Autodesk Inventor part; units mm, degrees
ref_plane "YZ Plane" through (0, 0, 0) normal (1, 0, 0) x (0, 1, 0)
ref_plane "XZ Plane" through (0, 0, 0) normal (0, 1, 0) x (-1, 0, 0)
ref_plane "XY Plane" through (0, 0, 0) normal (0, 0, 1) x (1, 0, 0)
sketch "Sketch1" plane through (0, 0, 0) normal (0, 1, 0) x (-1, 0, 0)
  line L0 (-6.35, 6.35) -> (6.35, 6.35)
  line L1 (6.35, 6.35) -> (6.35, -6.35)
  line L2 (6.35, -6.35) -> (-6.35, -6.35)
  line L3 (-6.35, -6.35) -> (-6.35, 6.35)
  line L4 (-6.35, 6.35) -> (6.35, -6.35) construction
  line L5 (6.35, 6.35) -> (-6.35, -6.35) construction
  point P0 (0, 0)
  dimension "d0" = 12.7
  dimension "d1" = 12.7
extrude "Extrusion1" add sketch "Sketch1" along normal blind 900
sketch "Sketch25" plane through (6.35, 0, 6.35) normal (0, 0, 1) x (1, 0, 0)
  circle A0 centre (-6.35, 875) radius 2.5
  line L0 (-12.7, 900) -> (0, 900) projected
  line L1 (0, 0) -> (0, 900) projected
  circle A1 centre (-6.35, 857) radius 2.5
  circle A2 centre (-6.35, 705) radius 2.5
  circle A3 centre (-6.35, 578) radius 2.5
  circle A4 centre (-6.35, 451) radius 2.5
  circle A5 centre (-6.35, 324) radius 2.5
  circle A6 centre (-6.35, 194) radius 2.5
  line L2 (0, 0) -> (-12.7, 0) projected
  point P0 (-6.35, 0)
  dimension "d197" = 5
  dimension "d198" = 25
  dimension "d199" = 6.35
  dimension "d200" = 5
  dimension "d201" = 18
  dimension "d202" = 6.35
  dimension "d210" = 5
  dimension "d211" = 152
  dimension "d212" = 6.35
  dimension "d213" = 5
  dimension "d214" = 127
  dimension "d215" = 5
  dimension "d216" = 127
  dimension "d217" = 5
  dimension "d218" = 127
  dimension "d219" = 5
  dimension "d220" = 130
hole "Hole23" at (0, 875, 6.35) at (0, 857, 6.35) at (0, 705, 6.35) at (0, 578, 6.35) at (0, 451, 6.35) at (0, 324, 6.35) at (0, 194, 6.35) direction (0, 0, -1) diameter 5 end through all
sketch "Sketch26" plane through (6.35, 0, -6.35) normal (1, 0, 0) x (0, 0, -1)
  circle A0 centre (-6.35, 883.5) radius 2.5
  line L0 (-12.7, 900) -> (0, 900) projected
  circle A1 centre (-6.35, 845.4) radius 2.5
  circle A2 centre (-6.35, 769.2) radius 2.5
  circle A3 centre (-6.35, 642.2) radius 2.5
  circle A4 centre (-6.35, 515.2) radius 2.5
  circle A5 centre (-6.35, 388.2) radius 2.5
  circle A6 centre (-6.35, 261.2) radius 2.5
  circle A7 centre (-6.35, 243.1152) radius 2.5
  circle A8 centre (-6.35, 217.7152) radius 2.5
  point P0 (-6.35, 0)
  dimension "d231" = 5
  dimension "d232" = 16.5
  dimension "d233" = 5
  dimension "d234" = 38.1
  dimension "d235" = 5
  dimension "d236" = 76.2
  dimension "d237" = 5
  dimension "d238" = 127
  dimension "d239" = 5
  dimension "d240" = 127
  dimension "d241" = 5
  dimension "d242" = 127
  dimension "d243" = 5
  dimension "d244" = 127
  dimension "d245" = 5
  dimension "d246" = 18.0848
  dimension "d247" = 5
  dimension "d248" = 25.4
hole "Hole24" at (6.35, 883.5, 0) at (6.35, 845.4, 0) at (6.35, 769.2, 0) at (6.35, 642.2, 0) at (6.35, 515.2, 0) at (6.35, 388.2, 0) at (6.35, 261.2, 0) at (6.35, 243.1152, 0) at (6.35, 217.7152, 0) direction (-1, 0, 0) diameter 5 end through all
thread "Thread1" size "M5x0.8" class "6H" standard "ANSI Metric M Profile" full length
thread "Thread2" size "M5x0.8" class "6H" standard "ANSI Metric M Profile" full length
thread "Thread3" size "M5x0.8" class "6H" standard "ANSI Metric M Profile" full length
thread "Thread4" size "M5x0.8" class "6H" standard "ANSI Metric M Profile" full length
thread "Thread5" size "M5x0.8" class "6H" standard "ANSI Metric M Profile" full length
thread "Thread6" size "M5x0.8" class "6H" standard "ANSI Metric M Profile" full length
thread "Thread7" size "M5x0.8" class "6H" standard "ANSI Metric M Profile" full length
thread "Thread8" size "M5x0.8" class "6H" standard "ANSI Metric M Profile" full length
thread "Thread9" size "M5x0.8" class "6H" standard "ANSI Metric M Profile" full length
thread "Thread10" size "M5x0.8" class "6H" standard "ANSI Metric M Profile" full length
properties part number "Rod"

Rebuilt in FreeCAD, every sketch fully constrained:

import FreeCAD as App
import Part
import Sketcher
from FreeCAD import Vector

doc = App.newDocument("Part")
body = doc.addObject("PartDesign::Body", "Body")

# Sketch on XZ plane
sketch1 = body.newObject("Sketcher::SketchObject", "Sketch")
sketch1.AttachmentSupport = (doc.getObject("XZ_Plane"), [""])
sketch1.MapMode = "FlatFace"
sketch1.addGeometry([
    Part.LineSegment(Vector(-6, 6, 0), Vector(6, 6, 0)),
    Part.LineSegment(Vector(6, 6, 0), Vector(6, -6, 0)),
    Part.LineSegment(Vector(6, -6, 0), Vector(-6, -6, 0)),
    Part.LineSegment(Vector(-6, -6, 0), Vector(-6, 6, 0)),
], False)
sketch1.addConstraint([
    Sketcher.Constraint("Coincident", 0, 2, 1, 1),
    Sketcher.Constraint("Coincident", 1, 2, 2, 1),
    Sketcher.Constraint("Coincident", 2, 2, 3, 1),
    Sketcher.Constraint("Coincident", 3, 2, 0, 1),
    Sketcher.Constraint("Horizontal", 0),
    Sketcher.Constraint("Vertical", 1),
    Sketcher.Constraint("Horizontal", 2),
    Sketcher.Constraint("Vertical", 3),
    Sketcher.Constraint("Symmetric", 0, 2, 2, 2, -1, 1),
    Sketcher.Constraint("Equal", 2, 1),
    Sketcher.Constraint("DistanceX", 0, 1, 0, 2, 12.7),
])
pad1 = body.newObject("PartDesign::Pad", "Pad")
pad1.Profile = sketch1
pad1.Length = 900
pad1.Reversed = True

# Sketch on XY plane
sketch2 = body.newObject("Sketcher::SketchObject", "Sketch001")
sketch2.AttachmentSupport = (doc.getObject("XY_Plane"), [""])
sketch2.MapMode = "FlatFace"
sketch2.AttachmentOffset = App.Placement(Vector(0, 0, 6.35), App.Rotation())
sketch2.addGeometry([
    Part.Circle(Vector(0, 875, 0), Vector(0, 0, 1), 2.5),  # 0
    Part.Circle(Vector(0, 857, 0), Vector(0, 0, 1), 2.5),  # 1
    Part.Circle(Vector(0, 705, 0), Vector(0, 0, 1), 2.5),  # 2
    Part.Circle(Vector(0, 578, 0), Vector(0, 0, 1), 2.5),  # 3
    Part.Circle(Vector(0, 451, 0), Vector(0, 0, 1), 2.5),  # 4
    Part.Circle(Vector(0, 324, 0), Vector(0, 0, 1), 2.5),  # 5
    Part.Circle(Vector(0, 194, 0), Vector(0, 0, 1), 2.5),  # 6
], False)
sketch2.addConstraint([
    Sketcher.Constraint("Equal", 0, 1),
    Sketcher.Constraint("Equal", 1, 2),
    Sketcher.Constraint("Equal", 2, 3),
    Sketcher.Constraint("Equal", 3, 4),
    Sketcher.Constraint("Equal", 4, 5),
    Sketcher.Constraint("Equal", 5, 6),
    Sketcher.Constraint("PointOnObject", 0, 3, -2),
    Sketcher.Constraint("PointOnObject", 1, 3, -2),
    Sketcher.Constraint("PointOnObject", 2, 3, -2),
    Sketcher.Constraint("PointOnObject", 3, 3, -2),
    Sketcher.Constraint("PointOnObject", 4, 3, -2),
    Sketcher.Constraint("PointOnObject", 5, 3, -2),
    Sketcher.Constraint("PointOnObject", 6, 3, -2),
    Sketcher.Constraint("Diameter", 0, 5.0),
    Sketcher.Constraint("DistanceY", -1, 1, 0, 3, 875.0),
    Sketcher.Constraint("DistanceY", -1, 1, 1, 3, 857.0),
    Sketcher.Constraint("DistanceY", -1, 1, 2, 3, 705.0),
    Sketcher.Constraint("DistanceY", -1, 1, 3, 3, 578.0),
    Sketcher.Constraint("DistanceY", -1, 1, 4, 3, 451.0),
    Sketcher.Constraint("DistanceY", -1, 1, 5, 3, 324.0),
    Sketcher.Constraint("DistanceY", -1, 1, 6, 3, 194.0),
])
doc.recompute()
hole = body.newObject("PartDesign::Hole", "Hole")
hole.Profile = sketch2
hole.ThreadType = "None"
hole.Diameter = 5
hole.DepthType = "ThroughAll"

# Sketch on YZ plane
sketch3 = body.newObject("Sketcher::SketchObject", "Sketch002")
sketch3.AttachmentSupport = (doc.getObject("YZ_Plane"), [""])
sketch3.MapMode = "FlatFace"
sketch3.AttachmentOffset = App.Placement(Vector(0, 0, 6.35), App.Rotation())
sketch3.addGeometry([
    Part.Circle(Vector(883.5, 0, 0), Vector(0, 0, 1), 2.5),  # 0
    Part.Circle(Vector(845.4, 0, 0), Vector(0, 0, 1), 2.5),  # 1
    Part.Circle(Vector(769.2, 0, 0), Vector(0, 0, 1), 2.5),  # 2
    Part.Circle(Vector(642.2, 0, 0), Vector(0, 0, 1), 2.5),  # 3
    Part.Circle(Vector(515.2, 0, 0), Vector(0, 0, 1), 2.5),  # 4
    Part.Circle(Vector(388.2, 0, 0), Vector(0, 0, 1), 2.5),  # 5
    Part.Circle(Vector(261.2, 0, 0), Vector(0, 0, 1), 2.5),  # 6
    Part.Circle(Vector(243.1, 0, 0), Vector(0, 0, 1), 2.5),  # 7
    Part.Circle(Vector(217.7, 0, 0), Vector(0, 0, 1), 2.5),  # 8
], False)
sketch3.addConstraint([
    Sketcher.Constraint("Equal", 0, 1),
    Sketcher.Constraint("Equal", 1, 2),
    Sketcher.Constraint("Equal", 2, 3),
    Sketcher.Constraint("Equal", 3, 4),
    Sketcher.Constraint("Equal", 4, 5),
    Sketcher.Constraint("Equal", 5, 6),
    Sketcher.Constraint("Equal", 6, 7),
    Sketcher.Constraint("Equal", 7, 8),
    Sketcher.Constraint("PointOnObject", 0, 3, -1),
    Sketcher.Constraint("PointOnObject", 1, 3, -1),
    Sketcher.Constraint("PointOnObject", 2, 3, -1),
    Sketcher.Constraint("PointOnObject", 3, 3, -1),
    Sketcher.Constraint("PointOnObject", 4, 3, -1),
    Sketcher.Constraint("PointOnObject", 5, 3, -1),
    Sketcher.Constraint("PointOnObject", 6, 3, -1),
    Sketcher.Constraint("PointOnObject", 7, 3, -1),
    Sketcher.Constraint("PointOnObject", 8, 3, -1),
    Sketcher.Constraint("Diameter", 0, 5.0),
    Sketcher.Constraint("DistanceX", 3, 3, 2, 3, 127.0),
    Sketcher.Constraint("DistanceX", 4, 3, 3, 3, 127.0),
    Sketcher.Constraint("DistanceX", 5, 3, 4, 3, 127.0),
    Sketcher.Constraint("DistanceX", 6, 3, 5, 3, 127.0),
    Sketcher.Constraint("DistanceX", -1, 1, 0, 3, 883.5),
    Sketcher.Constraint("DistanceX", -1, 1, 1, 3, 845.4),
    Sketcher.Constraint("DistanceX", -1, 1, 2, 3, 769.2),
    Sketcher.Constraint("DistanceX", 8, 3, 7, 3, 25.4),
    Sketcher.Constraint("DistanceX", -1, 1, 7, 3, 243.1152),
])
doc.recompute()
hole2 = body.newObject("PartDesign::Hole", "Hole001")
hole2.Profile = sketch3
hole2.ThreadType = "None"
hole2.Diameter = 5
hole2.DepthType = "ThroughAll"

doc.recompute()
